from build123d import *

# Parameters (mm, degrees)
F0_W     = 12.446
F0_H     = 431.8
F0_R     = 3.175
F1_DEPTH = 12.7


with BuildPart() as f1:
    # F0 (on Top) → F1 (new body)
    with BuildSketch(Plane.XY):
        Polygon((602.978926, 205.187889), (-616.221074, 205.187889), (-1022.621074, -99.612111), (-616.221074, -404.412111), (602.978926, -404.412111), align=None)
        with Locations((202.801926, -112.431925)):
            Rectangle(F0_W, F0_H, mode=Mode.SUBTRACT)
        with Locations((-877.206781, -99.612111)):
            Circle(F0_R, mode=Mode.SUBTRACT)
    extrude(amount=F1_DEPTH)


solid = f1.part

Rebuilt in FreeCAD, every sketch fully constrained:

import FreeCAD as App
import Part
import Sketcher
from FreeCAD import Vector
Q = App.Units.Quantity


def add_polygon(sketch, points):
    """Adds a closed chain of lines whose ends are joined by coincident constraints."""
    first, n = sketch.GeometryCount, len(points)
    for a, b in zip(points, points[1:] + points[:1]):
        sketch.addGeometry(Part.LineSegment(App.Vector(*a, 0), App.Vector(*b, 0)), False)
    for i in range(n):
        sketch.addConstraint(Sketcher.Constraint("Coincident", first + i, 2, first + (i + 1) % n, 1))

doc = App.newDocument("Part")
body = doc.addObject("PartDesign::Body", "Body")

sketch1 = body.newObject("Sketcher::SketchObject", "Sketch")
sketch1.AttachmentSupport = (doc.getObject("XY_Plane"), [""])
sketch1.MapMode = "FlatFace"
add_polygon(sketch1, [(603, 205.2), (-616.2, 205.2), (-1022.6, -99.6), (-616.2, -404.4), (603, -404.4)])
sketch1.addGeometry(Part.Circle(Vector(-877.2, -99.6, 0), Vector(0, 0, 1), 3.2), False)
add_polygon(sketch1, [(209, -328.3), (196.6, -328.3), (196.6, 103.5), (209, 103.5)])
sketch1.addConstraint([
    Sketcher.Constraint("Horizontal", 0),
    Sketcher.Constraint("Horizontal", 3),
    Sketcher.Constraint("Vertical", 4),
    Sketcher.Constraint("Horizontal", 6),
    Sketcher.Constraint("Vertical", 7),
    Sketcher.Constraint("Horizontal", 8),
    Sketcher.Constraint("Vertical", 9),
    Sketcher.Constraint("Horizontal", 5, 3, 1, 2),
    Sketcher.Constraint("Vertical", 0, 2, 2, 2),
    Sketcher.Constraint("Equal", 1, 2),
    Sketcher.Constraint("Diameter", 5, Q("0.25 in")),
    Sketcher.Constraint("DistanceX", 0, 2, 0, 1, Q("48 in")),
    Sketcher.Constraint("DistanceY", 4, 1, 4, 2, Q("24 in")),
    Sketcher.Constraint("DistanceY", 7, 1, 7, 2, Q("17 in")),
    Sketcher.Constraint("Distance", 1, Q("20 in")),
    Sketcher.Constraint("DistanceX", 6, 2, 3, 2, Q("16 in")),
    Sketcher.Constraint("DistanceX", 6, 2, 6, 1, Q("0.49 in")),
    Sketcher.Constraint("DistanceX", 5, 3, -1, 1, Q("34.5357 in")),
    Sketcher.Constraint("DistanceY", 5, 3, -1, 1, Q("99.612111 mm")),
    Sketcher.Constraint("DistanceX", 0, 2, -1, 1, Q("616.221074 mm")),
    Sketcher.Constraint("DistanceY", 6, 2, -1, 1, Q("328.331925 mm")),
])
pad1 = body.newObject("PartDesign::Pad", "Pad")
pad1.Profile = sketch1
pad1.Length = Q("0.5 in")

doc.recompute()
